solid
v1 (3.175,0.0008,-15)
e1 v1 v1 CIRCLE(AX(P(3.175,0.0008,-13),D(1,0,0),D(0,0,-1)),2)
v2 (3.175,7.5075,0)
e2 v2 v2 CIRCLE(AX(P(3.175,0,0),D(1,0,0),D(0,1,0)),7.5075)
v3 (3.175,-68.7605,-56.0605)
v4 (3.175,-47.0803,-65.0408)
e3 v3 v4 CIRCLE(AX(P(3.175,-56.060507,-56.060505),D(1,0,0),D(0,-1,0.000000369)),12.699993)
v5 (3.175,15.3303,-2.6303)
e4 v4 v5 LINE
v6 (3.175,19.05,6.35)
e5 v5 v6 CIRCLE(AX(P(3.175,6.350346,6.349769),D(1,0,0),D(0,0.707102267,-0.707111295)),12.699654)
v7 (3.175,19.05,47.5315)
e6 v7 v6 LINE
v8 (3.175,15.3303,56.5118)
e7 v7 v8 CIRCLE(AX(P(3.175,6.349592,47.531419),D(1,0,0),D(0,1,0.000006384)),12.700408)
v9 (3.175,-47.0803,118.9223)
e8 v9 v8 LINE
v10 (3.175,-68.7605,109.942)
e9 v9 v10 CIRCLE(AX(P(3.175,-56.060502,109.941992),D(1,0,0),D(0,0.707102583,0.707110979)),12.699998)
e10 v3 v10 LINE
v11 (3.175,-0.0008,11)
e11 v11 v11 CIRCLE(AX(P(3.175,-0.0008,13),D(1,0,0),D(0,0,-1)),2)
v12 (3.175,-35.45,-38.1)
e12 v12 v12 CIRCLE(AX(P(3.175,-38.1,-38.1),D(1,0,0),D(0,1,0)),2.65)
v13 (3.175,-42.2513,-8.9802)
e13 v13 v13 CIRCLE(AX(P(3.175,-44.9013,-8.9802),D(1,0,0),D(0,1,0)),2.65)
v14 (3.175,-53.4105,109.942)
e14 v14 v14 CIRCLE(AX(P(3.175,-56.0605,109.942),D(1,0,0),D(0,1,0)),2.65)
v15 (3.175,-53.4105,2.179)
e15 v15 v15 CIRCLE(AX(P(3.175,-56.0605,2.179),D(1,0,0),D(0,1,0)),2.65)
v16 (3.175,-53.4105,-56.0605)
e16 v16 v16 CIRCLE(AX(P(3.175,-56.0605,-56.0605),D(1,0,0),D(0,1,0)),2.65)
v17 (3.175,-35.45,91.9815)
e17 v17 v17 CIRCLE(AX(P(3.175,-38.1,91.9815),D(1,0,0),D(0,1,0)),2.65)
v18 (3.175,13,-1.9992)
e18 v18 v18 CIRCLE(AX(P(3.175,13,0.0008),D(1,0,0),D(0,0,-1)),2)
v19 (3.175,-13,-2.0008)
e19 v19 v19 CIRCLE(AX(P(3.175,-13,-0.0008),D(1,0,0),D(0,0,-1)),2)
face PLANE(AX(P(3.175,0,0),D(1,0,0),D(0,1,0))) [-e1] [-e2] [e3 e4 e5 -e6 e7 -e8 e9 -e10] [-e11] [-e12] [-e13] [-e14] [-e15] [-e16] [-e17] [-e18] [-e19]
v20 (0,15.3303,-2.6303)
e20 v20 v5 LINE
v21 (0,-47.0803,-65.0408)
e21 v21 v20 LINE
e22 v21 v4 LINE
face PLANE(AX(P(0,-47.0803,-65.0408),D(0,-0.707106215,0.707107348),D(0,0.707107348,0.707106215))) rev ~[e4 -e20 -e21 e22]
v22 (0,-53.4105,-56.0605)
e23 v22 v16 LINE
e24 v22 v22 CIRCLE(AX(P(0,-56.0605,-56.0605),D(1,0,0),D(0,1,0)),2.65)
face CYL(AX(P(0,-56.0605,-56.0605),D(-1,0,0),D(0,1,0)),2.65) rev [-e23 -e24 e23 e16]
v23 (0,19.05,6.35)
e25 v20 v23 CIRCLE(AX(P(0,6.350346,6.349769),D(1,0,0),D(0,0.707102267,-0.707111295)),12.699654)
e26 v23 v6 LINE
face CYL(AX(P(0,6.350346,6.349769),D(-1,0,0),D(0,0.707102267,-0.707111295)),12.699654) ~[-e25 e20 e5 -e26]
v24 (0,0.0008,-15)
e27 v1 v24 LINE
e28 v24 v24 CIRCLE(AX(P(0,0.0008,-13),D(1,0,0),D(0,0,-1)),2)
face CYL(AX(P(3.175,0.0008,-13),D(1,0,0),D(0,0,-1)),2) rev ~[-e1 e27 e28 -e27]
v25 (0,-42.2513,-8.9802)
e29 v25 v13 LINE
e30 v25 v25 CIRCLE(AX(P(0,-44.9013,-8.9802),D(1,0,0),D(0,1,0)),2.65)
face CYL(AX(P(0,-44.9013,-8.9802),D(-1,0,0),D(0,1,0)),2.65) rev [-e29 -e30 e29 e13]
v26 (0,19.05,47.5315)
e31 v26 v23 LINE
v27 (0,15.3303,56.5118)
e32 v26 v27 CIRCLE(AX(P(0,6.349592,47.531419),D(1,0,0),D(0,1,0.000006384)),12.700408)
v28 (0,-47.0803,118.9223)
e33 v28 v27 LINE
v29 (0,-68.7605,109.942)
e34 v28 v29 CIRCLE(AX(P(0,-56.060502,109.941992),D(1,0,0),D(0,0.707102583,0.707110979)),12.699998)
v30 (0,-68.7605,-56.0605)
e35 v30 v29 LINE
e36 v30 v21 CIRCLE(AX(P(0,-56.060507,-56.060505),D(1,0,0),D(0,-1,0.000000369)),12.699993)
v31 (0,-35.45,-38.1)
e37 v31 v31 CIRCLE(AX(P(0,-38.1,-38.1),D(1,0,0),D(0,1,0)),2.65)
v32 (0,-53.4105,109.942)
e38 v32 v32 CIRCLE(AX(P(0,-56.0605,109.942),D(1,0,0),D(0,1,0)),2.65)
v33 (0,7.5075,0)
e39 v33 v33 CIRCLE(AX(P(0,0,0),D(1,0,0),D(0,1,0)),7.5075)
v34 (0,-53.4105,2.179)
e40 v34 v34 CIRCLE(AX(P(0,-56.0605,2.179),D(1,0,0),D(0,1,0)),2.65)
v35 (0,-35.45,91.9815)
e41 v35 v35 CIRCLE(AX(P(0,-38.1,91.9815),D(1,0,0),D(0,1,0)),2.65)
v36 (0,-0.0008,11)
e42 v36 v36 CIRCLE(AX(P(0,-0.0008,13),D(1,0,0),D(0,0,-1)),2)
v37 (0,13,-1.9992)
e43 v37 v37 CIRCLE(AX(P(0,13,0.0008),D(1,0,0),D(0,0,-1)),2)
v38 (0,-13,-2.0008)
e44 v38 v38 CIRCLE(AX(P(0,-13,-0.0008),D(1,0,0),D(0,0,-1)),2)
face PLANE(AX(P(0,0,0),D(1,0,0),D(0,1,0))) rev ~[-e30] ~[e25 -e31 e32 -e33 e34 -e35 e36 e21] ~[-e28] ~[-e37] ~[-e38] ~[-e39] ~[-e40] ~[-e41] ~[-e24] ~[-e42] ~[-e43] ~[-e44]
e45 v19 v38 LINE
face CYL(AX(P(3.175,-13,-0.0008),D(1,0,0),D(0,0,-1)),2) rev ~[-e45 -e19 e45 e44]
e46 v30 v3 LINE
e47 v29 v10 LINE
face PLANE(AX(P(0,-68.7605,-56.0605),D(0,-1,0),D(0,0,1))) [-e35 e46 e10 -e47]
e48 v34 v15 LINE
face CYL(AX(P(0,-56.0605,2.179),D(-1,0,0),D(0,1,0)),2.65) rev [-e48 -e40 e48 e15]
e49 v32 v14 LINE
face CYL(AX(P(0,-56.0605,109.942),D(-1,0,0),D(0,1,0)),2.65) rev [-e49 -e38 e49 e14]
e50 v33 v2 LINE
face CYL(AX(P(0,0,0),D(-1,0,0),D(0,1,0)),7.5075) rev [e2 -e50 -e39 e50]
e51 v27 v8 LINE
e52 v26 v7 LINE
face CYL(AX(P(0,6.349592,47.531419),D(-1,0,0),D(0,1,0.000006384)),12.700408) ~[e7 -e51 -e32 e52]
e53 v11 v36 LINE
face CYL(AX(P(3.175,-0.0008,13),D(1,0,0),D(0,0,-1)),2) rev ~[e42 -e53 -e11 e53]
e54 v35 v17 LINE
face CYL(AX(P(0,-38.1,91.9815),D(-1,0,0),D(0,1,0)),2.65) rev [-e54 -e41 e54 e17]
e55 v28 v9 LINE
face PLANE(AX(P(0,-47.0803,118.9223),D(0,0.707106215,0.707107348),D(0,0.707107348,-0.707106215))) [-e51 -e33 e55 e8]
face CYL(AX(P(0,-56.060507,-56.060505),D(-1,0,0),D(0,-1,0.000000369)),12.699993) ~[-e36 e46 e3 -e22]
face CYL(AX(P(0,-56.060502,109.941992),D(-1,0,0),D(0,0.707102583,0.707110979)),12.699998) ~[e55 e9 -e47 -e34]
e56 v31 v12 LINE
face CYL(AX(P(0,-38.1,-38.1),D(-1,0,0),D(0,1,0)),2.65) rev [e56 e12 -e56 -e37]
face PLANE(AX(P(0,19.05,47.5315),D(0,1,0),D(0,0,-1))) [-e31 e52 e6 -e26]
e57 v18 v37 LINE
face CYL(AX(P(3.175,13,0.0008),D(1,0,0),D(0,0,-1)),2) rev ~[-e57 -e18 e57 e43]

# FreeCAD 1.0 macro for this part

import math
import FreeCAD as App
import Part
import Sketcher

V = App.Vector
Q = App.Units.Quantity

doc = App.newDocument("Part")
body = doc.addObject("PartDesign::Body", "Body")

# Sketch on YZ plane
sketch1 = body.newObject("Sketcher::SketchObject", "Sketch")
sketch1.AttachmentSupport = (doc.getObject("YZ_Plane"), [""])
sketch1.MapMode = "FlatFace"
sketch1.addGeometry(Part.LineSegment(V(15.3, 56.5, 0), V(-47.1, 118.9, 0)), False)
sketch1.addGeometry(Part.ArcOfCircle(Part.Circle(V(-56.1, 109.9, 0), V(0, 0, 1), 12.7), math.radians(45), math.radians(180)), False)
sketch1.addGeometry(Part.LineSegment(V(-68.8, 109.9, 0), V(-68.8, -56.1, 0)), False)
sketch1.addGeometry(Part.ArcOfCircle(Part.Circle(V(-56.1, -56.1, 0), V(0, 0, 1), 12.7), math.radians(180), math.radians(315)), False)
sketch1.addGeometry(Part.LineSegment(V(-47.1, -65, 0), V(15.3, -2.6, 0)), False)
sketch1.addGeometry(Part.ArcOfCircle(Part.Circle(V(6.3, 6.3, 0), V(0, 0, 1), 12.7), math.radians(-45), math.radians(0)), False)
sketch1.addGeometry(Part.LineSegment(V(19.1, 6.3, 0), V(19.1, 47.5, 0)), False)
sketch1.addGeometry(Part.ArcOfCircle(Part.Circle(V(6.3, 47.5, 0), V(0, 0, 1), 12.7), math.radians(0), math.radians(45)), False)
sketch1.addGeometry(Part.Circle(V(-56.1, -56.1, 0), V(0, 0, 1), 2.6), False)
sketch1.addGeometry(Part.Circle(V(-38.1, -38.1, 0), V(0, 0, 1), 2.6), False)
sketch1.addGeometry(Part.Circle(V(0, 0, 0), V(0, 0, 1), 7.5), False)
sketch1.addGeometry(Part.Circle(V(-38.1, 92, 0), V(0, 0, 1), 2.6), False)
sketch1.addGeometry(Part.Circle(V(-56.1, 109.9, 0), V(0, 0, 1), 2.6), False)
sketch1.addGeometry(Part.Circle(V(-44.9, -9, 0), V(0, 0, 1), 2.6), False)
sketch1.addGeometry(Part.Circle(V(-56.1, 2.2, 0), V(0, 0, 1), 2.6), False)
sketch1.addConstraint(Sketcher.Constraint("Tangent", 0, 2, 1, 1))
sketch1.addConstraint(Sketcher.Constraint("Tangent", 1, 2, 2, 1))
sketch1.addConstraint(Sketcher.Constraint("Tangent", 2, 2, 3, 1))
sketch1.addConstraint(Sketcher.Constraint("Tangent", 3, 2, 4, 1))
sketch1.addConstraint(Sketcher.Constraint("Tangent", 4, 2, 5, 1))
sketch1.addConstraint(Sketcher.Constraint("Tangent", 5, 2, 6, 1))
sketch1.addConstraint(Sketcher.Constraint("Tangent", 6, 2, 7, 1))
sketch1.addConstraint(Sketcher.Constraint("Tangent", 7, 2, 0, 1))
sketch1.addConstraint(Sketcher.Constraint("Vertical", 2))
sketch1.addConstraint(Sketcher.Constraint("Vertical", 6))
sketch1.addConstraint(Sketcher.Constraint("Coincident", 10, 3, -1, 1))
sketch1.addConstraint(Sketcher.Constraint("Coincident", 8, 3, 3, 3))
sketch1.addConstraint(Sketcher.Constraint("Coincident", 12, 3, 1, 3))
sketch1.addConstraint(Sketcher.Constraint("Equal", 1, 3))
sketch1.addConstraint(Sketcher.Constraint("Equal", 3, 5))
sketch1.addConstraint(Sketcher.Constraint("Equal", 5, 7))
sketch1.addConstraint(Sketcher.Constraint("Equal", 8, 9))
sketch1.addConstraint(Sketcher.Constraint("Equal", 9, 11))
sketch1.addConstraint(Sketcher.Constraint("Equal", 11, 12))
sketch1.addConstraint(Sketcher.Constraint("Equal", 12, 13))
sketch1.addConstraint(Sketcher.Constraint("Equal", 13, 14))
sketch1.addConstraint(Sketcher.Constraint("Perpendicular", 0, 4))
sketch1.addConstraint(Sketcher.Constraint("Vertical", 9, 3, 11, 3))
sketch1.addConstraint(Sketcher.Constraint("Vertical", 12, 3, 14, 3))
sketch1.addConstraint(Sketcher.Constraint("Vertical", 0, 2, 3, 2))
sketch1.addConstraint(Sketcher.Constraint("Radius", 1, Q("0.5 in")))
sketch1.addConstraint(Sketcher.Constraint("DistanceX", 9, 3, -1, 1, Q("1.5 in")))
sketch1.addConstraint(Sketcher.Constraint("DistanceY", 9, 3, -1, 1, Q("1.5 in")))
sketch1.addConstraint(Sketcher.Constraint("Diameter", 8, 5.3))
sketch1.addConstraint(Sketcher.Constraint("Diameter", 10, 15.015))
sketch1.addConstraint(Sketcher.Constraint("DistanceX", -1, 1, 5, 2, Q("0.75 in")))
sketch1.addConstraint(Sketcher.Constraint("DistanceY", -1, 1, 5, 3, Q("0.25 in")))
sketch1.addConstraint(Sketcher.Constraint("DistanceY", 7, 3, 11, 3, Q("1.75 in")))
sketch1.addConstraint(Sketcher.Constraint("DistanceY", 13, 3, 4, 2, Q("0.25 in")))
sketch1.addConstraint(Sketcher.Constraint("DistanceY", 2, 2, 2, 1, 166.0025))
sketch1.addConstraint(Sketcher.Constraint("DistanceY", 6, 1, 6, 2, 41.1815))
sketch1.addConstraint(Sketcher.Constraint("DistanceY", 3, 3, 14, 3, Q("2.2929 in")))
sketch1.addConstraint(Sketcher.Constraint("DistanceX", 13, 3, -1, 1, 44.9013))
pad1 = body.newObject("PartDesign::Pad", "Pad")
pad1.Profile = sketch1
pad1.Length = Q("0.125 in")

# Sketch on YZ plane
sketch2 = body.newObject("Sketcher::SketchObject", "Sketch001")
sketch2.AttachmentSupport = (doc.getObject("YZ_Plane"), [""])
sketch2.MapMode = "FlatFace"
sketch2.AttachmentOffset = App.Placement(V(0, 0, 0.125 * 25.4), App.Rotation())
sketch2.addGeometry(Part.Circle(V(13, 0, 0), V(0, 0, 1), 2), False)
sketch2.addGeometry(Part.Circle(V(0, 13, 0), V(0, 0, 1), 2), False)
sketch2.addGeometry(Part.Circle(V(-13, 0, 0), V(0, 0, 1), 2), False)
sketch2.addGeometry(Part.Circle(V(0, -13, 0), V(0, 0, 1), 2), False)
sketch2.addConstraint(Sketcher.Constraint("Equal", 0, 1))
sketch2.addConstraint(Sketcher.Constraint("Equal", 1, 2))
sketch2.addConstraint(Sketcher.Constraint("Equal", 2, 3))
sketch2.addConstraint(Sketcher.Constraint("Symmetric", 0, 3, 2, 3, -1, 1))
sketch2.addConstraint(Sketcher.Constraint("Symmetric", 1, 3, 3, 3, -1, 1))
sketch2.addConstraint(Sketcher.Constraint("Diameter", 0, 4.0))
sketch2.addConstraint(Sketcher.Constraint("DistanceX", 2, 3, 0, 3, 26.0))
sketch2.addConstraint(Sketcher.Constraint("DistanceY", 3, 3, 1, 3, 26.0))
sketch2.addConstraint(Sketcher.Constraint("DistanceY", -1, 1, 0, 3, 0.0008))
sketch2.addConstraint(Sketcher.Constraint("DistanceX", 1, 3, -1, 1, 0.0008))
pocket1 = body.newObject("PartDesign::Pocket", "Pocket")
pocket1.Profile = sketch2
pocket1.Length = Q("1 in")

doc.recompute()
